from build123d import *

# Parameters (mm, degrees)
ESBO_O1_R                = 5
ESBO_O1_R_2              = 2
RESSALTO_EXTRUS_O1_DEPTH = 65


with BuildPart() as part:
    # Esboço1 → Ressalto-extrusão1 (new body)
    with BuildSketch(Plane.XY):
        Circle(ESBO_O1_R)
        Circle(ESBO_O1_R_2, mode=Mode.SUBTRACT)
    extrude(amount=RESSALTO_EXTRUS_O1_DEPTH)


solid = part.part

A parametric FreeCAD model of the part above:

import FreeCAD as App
import Part
import Sketcher
from FreeCAD import Vector

doc = App.newDocument("Part")
body = doc.addObject("PartDesign::Body", "Body")

# Sketch on XY plane
sketch1 = body.newObject("Sketcher::SketchObject", "Sketch")
sketch1.AttachmentSupport = (doc.getObject("XY_Plane"), [""])
sketch1.MapMode = "FlatFace"
sketch1.addGeometry([
    Part.Circle(Vector(0, 0, 0), Vector(0, 0, 1), 5),
    Part.Circle(Vector(0, 0, 0), Vector(0, 0, 1), 2),
], False)
sketch1.addConstraint([
    Sketcher.Constraint("Coincident", 0, 3, -1, 1),
    Sketcher.Constraint("Coincident", 1, 3, -1, 1),
    Sketcher.Constraint("Diameter", 0, 10.0),
    Sketcher.Constraint("Diameter", 1, 4.0),
])
pad1 = body.newObject("PartDesign::Pad", "Pad")
pad1.Profile = sketch1
pad1.Length = 65

doc.recompute()
